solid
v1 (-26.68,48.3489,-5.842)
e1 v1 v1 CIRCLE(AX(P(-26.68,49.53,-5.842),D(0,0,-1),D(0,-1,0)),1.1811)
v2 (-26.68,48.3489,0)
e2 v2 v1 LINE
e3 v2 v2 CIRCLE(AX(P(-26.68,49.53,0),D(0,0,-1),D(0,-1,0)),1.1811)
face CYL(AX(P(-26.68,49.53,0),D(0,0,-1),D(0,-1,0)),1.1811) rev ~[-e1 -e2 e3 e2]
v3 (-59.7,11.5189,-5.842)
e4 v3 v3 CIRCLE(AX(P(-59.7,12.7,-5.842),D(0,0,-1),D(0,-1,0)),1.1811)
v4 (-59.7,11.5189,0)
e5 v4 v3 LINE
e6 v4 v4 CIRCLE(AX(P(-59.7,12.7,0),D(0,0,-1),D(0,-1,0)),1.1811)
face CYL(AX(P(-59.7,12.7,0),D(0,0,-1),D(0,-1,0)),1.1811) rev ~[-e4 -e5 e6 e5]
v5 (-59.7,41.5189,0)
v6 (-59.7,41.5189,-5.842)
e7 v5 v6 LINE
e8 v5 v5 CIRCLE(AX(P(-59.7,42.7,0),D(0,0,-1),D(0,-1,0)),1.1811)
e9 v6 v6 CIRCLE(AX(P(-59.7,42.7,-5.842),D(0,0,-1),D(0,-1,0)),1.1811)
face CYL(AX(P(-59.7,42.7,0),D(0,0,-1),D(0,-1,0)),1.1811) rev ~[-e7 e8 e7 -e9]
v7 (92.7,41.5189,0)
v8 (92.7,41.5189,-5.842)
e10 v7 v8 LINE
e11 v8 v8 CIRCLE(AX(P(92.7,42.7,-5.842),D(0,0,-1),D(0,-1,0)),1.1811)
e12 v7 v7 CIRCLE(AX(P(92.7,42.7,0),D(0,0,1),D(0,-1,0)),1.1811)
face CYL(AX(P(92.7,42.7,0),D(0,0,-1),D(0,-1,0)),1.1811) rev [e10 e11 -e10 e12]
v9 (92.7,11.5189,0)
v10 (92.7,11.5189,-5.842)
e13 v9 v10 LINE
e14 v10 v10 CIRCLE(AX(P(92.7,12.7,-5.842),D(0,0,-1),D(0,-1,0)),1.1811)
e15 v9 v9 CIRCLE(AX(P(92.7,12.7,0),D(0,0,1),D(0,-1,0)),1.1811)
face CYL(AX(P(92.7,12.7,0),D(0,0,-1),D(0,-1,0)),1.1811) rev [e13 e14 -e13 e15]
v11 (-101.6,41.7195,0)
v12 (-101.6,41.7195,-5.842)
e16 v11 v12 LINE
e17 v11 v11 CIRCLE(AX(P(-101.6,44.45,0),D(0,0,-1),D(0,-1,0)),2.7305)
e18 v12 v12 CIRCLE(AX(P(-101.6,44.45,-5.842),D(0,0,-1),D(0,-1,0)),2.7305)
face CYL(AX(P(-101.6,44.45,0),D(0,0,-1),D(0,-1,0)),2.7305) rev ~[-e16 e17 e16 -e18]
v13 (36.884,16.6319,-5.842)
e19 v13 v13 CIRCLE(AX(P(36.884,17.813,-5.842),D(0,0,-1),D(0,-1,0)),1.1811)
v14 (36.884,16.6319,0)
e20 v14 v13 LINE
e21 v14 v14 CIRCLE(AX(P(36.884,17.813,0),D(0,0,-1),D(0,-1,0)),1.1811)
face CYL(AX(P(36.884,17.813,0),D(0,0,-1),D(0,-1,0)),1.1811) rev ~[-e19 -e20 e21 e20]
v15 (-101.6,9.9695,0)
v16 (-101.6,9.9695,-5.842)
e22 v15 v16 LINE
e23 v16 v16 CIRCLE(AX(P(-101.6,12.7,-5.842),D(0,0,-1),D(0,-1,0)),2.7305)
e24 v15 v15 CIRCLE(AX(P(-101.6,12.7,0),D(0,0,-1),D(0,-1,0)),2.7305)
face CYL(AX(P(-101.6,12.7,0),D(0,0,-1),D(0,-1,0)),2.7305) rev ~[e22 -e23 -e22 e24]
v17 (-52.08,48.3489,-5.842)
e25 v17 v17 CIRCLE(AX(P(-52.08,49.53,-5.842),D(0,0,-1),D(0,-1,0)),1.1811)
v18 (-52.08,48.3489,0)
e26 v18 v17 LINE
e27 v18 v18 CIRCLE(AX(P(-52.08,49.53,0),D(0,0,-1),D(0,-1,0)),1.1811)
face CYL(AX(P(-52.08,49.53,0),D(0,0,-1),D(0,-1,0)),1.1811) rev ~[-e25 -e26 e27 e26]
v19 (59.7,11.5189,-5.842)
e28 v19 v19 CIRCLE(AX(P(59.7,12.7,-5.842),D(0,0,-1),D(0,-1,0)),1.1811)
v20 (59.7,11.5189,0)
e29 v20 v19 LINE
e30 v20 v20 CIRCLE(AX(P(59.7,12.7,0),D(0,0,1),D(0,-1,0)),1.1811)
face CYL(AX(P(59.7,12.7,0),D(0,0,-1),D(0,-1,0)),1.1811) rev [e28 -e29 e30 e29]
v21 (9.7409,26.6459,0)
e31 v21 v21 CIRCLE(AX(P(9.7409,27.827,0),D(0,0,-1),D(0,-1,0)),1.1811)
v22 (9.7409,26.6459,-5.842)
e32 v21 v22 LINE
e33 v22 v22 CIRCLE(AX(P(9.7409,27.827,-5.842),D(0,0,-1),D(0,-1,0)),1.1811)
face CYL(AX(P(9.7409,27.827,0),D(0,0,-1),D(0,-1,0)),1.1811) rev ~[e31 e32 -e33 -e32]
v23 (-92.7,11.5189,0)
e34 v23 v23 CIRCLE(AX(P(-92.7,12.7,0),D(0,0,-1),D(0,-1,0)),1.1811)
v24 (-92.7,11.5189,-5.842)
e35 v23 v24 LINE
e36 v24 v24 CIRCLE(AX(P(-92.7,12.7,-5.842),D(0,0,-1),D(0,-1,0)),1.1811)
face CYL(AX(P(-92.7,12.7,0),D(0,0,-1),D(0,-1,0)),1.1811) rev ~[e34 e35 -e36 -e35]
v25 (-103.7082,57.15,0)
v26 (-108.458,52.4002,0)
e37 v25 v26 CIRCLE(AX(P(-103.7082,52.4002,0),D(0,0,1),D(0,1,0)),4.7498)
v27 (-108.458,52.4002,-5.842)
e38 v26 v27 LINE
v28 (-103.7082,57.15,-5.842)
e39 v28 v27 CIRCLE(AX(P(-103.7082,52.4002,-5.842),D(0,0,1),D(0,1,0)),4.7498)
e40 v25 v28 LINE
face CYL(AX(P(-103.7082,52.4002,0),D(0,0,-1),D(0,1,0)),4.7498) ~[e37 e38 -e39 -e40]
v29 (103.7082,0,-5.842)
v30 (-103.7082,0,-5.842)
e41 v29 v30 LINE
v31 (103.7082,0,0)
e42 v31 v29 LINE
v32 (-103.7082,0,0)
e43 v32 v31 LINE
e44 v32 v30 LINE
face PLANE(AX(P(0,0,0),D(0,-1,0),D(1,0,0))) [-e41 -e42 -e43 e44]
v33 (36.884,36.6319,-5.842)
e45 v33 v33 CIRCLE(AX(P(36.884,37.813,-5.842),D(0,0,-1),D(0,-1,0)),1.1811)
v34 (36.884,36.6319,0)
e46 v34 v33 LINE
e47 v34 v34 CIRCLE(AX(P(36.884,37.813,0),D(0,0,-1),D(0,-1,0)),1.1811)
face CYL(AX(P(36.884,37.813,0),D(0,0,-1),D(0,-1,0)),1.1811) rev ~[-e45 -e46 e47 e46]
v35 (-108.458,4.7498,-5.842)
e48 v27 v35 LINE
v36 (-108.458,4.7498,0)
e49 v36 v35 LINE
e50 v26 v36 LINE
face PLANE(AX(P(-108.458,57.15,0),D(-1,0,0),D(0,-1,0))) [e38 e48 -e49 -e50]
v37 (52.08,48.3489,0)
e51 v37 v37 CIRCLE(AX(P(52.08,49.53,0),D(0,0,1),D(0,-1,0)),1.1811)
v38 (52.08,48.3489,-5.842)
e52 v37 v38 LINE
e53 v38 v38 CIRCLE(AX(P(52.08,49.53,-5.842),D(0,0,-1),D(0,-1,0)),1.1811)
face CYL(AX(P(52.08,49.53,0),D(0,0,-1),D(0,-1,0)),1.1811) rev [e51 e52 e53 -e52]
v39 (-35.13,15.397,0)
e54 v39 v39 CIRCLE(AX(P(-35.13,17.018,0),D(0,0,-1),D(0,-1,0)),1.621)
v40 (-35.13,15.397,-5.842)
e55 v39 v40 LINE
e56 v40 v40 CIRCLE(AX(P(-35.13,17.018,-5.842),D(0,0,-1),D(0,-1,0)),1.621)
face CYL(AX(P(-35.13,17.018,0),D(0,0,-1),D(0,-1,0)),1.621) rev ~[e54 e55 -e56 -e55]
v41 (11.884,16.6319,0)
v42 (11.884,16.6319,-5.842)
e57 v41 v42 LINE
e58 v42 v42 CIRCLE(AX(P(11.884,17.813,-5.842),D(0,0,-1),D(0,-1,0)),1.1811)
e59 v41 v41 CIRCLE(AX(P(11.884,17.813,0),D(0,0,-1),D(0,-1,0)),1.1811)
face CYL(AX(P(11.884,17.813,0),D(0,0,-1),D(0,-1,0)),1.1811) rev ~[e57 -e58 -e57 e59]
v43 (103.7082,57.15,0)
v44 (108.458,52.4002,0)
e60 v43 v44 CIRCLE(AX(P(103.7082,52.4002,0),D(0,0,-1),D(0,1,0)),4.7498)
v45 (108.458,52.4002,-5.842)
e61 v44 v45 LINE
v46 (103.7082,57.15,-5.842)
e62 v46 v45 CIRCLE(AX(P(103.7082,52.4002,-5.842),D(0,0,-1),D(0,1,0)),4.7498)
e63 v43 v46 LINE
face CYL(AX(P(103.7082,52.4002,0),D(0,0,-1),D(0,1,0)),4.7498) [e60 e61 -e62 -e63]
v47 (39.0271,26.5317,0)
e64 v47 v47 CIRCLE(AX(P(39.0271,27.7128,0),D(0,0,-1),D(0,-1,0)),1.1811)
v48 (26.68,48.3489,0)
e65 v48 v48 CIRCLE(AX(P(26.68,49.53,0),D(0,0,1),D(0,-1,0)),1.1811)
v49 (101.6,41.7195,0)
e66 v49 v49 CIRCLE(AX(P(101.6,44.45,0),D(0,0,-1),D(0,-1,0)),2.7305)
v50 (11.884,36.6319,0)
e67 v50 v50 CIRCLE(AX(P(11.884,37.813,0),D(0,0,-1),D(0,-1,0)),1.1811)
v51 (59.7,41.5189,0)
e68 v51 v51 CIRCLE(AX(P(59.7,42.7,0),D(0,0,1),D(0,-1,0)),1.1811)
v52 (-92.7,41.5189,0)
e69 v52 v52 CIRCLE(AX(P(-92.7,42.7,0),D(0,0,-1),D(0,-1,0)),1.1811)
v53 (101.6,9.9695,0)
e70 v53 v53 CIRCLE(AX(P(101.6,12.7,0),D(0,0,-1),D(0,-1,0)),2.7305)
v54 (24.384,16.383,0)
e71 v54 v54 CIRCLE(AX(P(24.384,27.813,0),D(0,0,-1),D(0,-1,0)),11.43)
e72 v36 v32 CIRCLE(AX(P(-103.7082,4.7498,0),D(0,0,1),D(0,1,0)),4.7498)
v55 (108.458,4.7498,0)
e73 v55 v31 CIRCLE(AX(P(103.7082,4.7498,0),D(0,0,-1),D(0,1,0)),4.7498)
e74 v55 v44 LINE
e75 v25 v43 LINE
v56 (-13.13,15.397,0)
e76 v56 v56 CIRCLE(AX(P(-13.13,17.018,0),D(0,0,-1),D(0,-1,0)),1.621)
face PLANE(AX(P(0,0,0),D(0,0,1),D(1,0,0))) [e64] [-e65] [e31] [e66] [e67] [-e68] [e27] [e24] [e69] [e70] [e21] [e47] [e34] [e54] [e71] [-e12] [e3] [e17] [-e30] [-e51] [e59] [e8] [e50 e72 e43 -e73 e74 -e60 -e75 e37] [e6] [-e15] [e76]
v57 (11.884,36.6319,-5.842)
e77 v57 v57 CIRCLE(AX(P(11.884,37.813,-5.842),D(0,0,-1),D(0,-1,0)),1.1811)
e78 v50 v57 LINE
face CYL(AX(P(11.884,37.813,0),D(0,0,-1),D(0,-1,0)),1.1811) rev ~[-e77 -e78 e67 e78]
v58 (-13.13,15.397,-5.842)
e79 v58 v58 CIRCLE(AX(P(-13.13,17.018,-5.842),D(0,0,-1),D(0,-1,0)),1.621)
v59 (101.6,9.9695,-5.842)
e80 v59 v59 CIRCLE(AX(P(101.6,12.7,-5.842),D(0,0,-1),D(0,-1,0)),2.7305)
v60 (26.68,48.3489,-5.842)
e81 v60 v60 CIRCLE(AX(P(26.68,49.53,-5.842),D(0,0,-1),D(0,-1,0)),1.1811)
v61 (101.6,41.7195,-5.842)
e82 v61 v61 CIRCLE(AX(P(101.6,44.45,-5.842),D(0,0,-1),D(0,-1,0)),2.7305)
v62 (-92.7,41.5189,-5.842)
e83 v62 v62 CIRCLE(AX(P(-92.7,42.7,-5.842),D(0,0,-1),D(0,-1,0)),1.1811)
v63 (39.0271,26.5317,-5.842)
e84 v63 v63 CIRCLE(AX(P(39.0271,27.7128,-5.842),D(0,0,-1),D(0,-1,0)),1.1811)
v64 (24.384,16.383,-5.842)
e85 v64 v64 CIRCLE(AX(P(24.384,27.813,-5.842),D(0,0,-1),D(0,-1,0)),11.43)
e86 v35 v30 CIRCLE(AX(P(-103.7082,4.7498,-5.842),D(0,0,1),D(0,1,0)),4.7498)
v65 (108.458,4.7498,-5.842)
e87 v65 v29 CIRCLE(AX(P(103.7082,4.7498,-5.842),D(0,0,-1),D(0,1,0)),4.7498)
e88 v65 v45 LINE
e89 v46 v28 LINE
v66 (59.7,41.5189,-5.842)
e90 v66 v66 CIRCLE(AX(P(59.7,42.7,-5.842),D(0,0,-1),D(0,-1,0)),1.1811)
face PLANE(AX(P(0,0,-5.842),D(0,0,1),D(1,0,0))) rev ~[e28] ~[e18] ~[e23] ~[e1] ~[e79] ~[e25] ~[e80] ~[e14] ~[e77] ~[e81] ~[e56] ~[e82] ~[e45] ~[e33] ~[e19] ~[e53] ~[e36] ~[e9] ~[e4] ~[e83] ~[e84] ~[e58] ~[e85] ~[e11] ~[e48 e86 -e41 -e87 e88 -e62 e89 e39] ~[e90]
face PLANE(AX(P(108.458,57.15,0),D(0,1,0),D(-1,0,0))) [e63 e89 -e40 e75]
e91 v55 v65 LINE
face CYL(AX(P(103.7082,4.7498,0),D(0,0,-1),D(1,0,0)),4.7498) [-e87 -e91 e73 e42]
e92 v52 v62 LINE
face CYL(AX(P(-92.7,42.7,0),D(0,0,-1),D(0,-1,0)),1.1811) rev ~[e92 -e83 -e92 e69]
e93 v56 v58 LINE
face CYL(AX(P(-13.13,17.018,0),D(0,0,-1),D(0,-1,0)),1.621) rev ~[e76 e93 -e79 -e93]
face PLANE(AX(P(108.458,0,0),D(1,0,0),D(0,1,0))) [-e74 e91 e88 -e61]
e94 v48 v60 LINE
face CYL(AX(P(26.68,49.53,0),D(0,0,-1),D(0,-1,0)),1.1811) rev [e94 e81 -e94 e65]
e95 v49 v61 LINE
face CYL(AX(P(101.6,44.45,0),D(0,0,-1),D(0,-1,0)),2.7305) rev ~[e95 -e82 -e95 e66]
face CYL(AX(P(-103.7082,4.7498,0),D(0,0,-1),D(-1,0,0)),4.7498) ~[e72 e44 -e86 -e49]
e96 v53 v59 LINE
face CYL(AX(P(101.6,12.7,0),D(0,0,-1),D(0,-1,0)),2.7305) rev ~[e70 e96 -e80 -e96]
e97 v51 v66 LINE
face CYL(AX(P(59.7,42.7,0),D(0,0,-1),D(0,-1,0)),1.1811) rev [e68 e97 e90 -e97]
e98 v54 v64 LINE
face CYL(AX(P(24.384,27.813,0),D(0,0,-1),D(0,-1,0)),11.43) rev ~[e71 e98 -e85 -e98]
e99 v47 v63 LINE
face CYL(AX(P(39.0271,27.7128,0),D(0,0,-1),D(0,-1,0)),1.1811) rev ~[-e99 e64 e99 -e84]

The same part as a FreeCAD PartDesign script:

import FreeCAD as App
import Part
import Sketcher
from FreeCAD import Vector
Q = App.Units.Quantity


def edges_at(feature, points):
    """Names of the edges that pass closest to the given points."""
    edges = feature.Shape.Edges
    near = lambda p: min(range(len(edges)), key=lambda i: edges[i].distToShape(Part.Vertex(*p))[0])
    return sorted({f"Edge{near(p) + 1}" for p in points})

doc = App.newDocument("Part")
body = doc.addObject("PartDesign::Body", "Body")

sketch1 = body.newObject("Sketcher::SketchObject", "Sketch")
sketch1.AttachmentSupport = (doc.getObject("XY_Plane"), [""])
sketch1.MapMode = "FlatFace"
sketch1.addGeometry([
    Part.LineSegment(Vector(108.458, 57.15, 0), Vector(-108.458, 57.15, 0)),
    Part.LineSegment(Vector(-108.458, 57.15, 0), Vector(-108.458, 0, 0)),
    Part.LineSegment(Vector(-108.458, 0, 0), Vector(108.458, 0, 0)),
    Part.LineSegment(Vector(108.458, 0, 0), Vector(108.458, 57.15, 0)),
], False)
sketch1.addConstraint([
    Sketcher.Constraint("Coincident", 0, 2, 1, 1),
    Sketcher.Constraint("Coincident", 1, 2, 2, 1),
    Sketcher.Constraint("Coincident", 2, 2, 3, 1),
    Sketcher.Constraint("Coincident", 3, 2, 0, 1),
    Sketcher.Constraint("Horizontal", 0),
    Sketcher.Constraint("Vertical", 1),
    Sketcher.Constraint("Horizontal", 2),
    Sketcher.Constraint("Vertical", 3),
    Sketcher.Constraint("Symmetric", 1, 2, 2, 2, -1, 1),
    Sketcher.Constraint("DistanceY", 1, 2, 1, 1, Q("2.25 in")),
    Sketcher.Constraint("DistanceX", 0, 2, -1, 1, Q("4.27 in")),
])
pad1 = body.newObject("PartDesign::Pad", "Pad")
pad1.Profile = sketch1
pad1.Length = Q("0.23 in")
pad1.Reversed = True

sketch2 = body.newObject("Sketcher::SketchObject", "Sketch001")
sketch2.AttachmentSupport = (doc.getObject("XY_Plane"), [""])
sketch2.MapMode = "FlatFace"
sketch2.addGeometry([
    Part.Circle(Vector(-101.6, 12.7, 0), Vector(0, 0, 1), 2.7305),
    Part.Circle(Vector(101.6, 12.7, 0), Vector(0, 0, 1), 2.7305),
    Part.Circle(Vector(-101.6, 44.45, 0), Vector(0, 0, 1), 2.7305),
    Part.Circle(Vector(101.6, 44.45, 0), Vector(0, 0, 1), 2.7305),
], False)
sketch2.addConstraint([
    Sketcher.Constraint("Equal", 0, 1),
    Sketcher.Constraint("Equal", 1, 2),
    Sketcher.Constraint("Equal", 2, 3),
    Sketcher.Constraint("Symmetric", 0, 3, 1, 3, -2),
    Sketcher.Constraint("Symmetric", 2, 3, 3, 3, -2),
    Sketcher.Constraint("Vertical", 0, 3, 2, 3),
    Sketcher.Constraint("Diameter", 0, Q("0.215 in")),
    Sketcher.Constraint("DistanceX", 0, 3, -1, 1, Q("4 in")),
    Sketcher.Constraint("DistanceY", -1, 1, 0, 3, Q("0.5 in")),
    Sketcher.Constraint("DistanceY", -1, 1, 2, 3, Q("1.75 in")),
])
doc.recompute()
hole = body.newObject("PartDesign::Hole", "Hole")
hole.Profile = sketch2
hole.ThreadType = "None"
hole.Diameter = Q("0.215 in")
hole.DepthType = "ThroughAll"

sketch3 = body.newObject("Sketcher::SketchObject", "Sketch002")
sketch3.AttachmentSupport = (doc.getObject("XY_Plane"), [""])
sketch3.MapMode = "FlatFace"
sketch3.addGeometry([
    Part.Circle(Vector(-92.7, 42.7, 0), Vector(0, 0, 1), 1.1811),
    Part.Circle(Vector(-59.7, 42.7, 0), Vector(0, 0, 1), 1.1811),
    Part.Circle(Vector(-59.7, 12.7, 0), Vector(0, 0, 1), 1.1811),
    Part.Circle(Vector(-92.7, 12.7, 0), Vector(0, 0, 1), 1.1811),
    Part.Circle(Vector(-26.68, 49.53, 0), Vector(0, 0, 1), 1.1811),
    Part.Circle(Vector(-52.08, 49.53, 0), Vector(0, 0, 1), 1.1811),
], False)
sketch3.addConstraint([
    Sketcher.Constraint("Equal", 0, 1),
    Sketcher.Constraint("Equal", 1, 2),
    Sketcher.Constraint("Equal", 2, 3),
    Sketcher.Constraint("Equal", 3, 4),
    Sketcher.Constraint("Equal", 4, 5),
    Sketcher.Constraint("Horizontal", 0, 3, 1, 3),
    Sketcher.Constraint("Horizontal", 2, 3, 3, 3),
    Sketcher.Constraint("Horizontal", 4, 3, 5, 3),
    Sketcher.Constraint("Vertical", 1, 3, 2, 3),
    Sketcher.Constraint("Vertical", 0, 3, 3, 3),
    Sketcher.Constraint("Diameter", 0, Q("0.093 in")),
    Sketcher.Constraint("DistanceX", 5, 3, 4, 3, Q("1 in")),
    Sketcher.Constraint("DistanceY", -1, 1, 2, 3, Q("0.5 in")),
    Sketcher.Constraint("DistanceX", 1, 3, 4, 3, Q("1.3 in")),
    Sketcher.Constraint("DistanceY", -1, 1, 4, 3, Q("1.95 in")),
    Sketcher.Constraint("DistanceX", 0, 3, -1, 1, Q("3.6496 in")),
    Sketcher.Constraint("DistanceY", -1, 1, 0, 3, Q("1.6811 in")),
    Sketcher.Constraint("DistanceX", 1, 3, -1, 1, Q("2.3504 in")),
])
doc.recompute()
hole2 = body.newObject("PartDesign::Hole", "Hole001")
hole2.Profile = sketch3
hole2.ThreadType = "None"
hole2.Diameter = Q("0.093 in")
hole2.DepthType = "ThroughAll"
doc.recompute()

fillet = body.newObject("PartDesign::Fillet", "Fillet")
fillet.Base = (hole2, edges_at(hole2, [
    (-108.458, 57.15, -2.921),
    (108.458, 57.15, -2.921),
    (108.458, 0, -2.921),
    (-108.458, 0, -2.921),
]))
fillet.Radius = Q("0.187 in")

sketch4 = body.newObject("Sketcher::SketchObject", "Sketch003")
sketch4.AttachmentSupport = (doc.getObject("XY_Plane"), [""])
sketch4.MapMode = "FlatFace"
sketch4.addGeometry([
    Part.Circle(Vector(36.884, 37.813, 0), Vector(0, 0, 1), 1.1811),
    Part.Circle(Vector(36.884, 17.813, 0), Vector(0, 0, 1), 1.1811),
    Part.Circle(Vector(11.884, 17.813, 0), Vector(0, 0, 1), 1.1811),
    Part.Circle(Vector(11.884, 37.813, 0), Vector(0, 0, 1), 1.1811),
    Part.Circle(Vector(39.0271, 27.7128, 0), Vector(0, 0, 1), 1.1811),
    Part.Circle(Vector(9.7409, 27.827, 0), Vector(0, 0, 1), 1.1811),
], False)
sketch4.addConstraint([
    Sketcher.Constraint("Equal", 0, 1),
    Sketcher.Constraint("Equal", 1, 2),
    Sketcher.Constraint("Equal", 2, 3),
    Sketcher.Constraint("Equal", 3, 4),
    Sketcher.Constraint("Equal", 4, 5),
    Sketcher.Constraint("Horizontal", 1, 3, 2, 3),
    Sketcher.Constraint("Horizontal", 0, 3, 3, 3),
    Sketcher.Constraint("Vertical", 0, 3, 1, 3),
    Sketcher.Constraint("Vertical", 2, 3, 3, 3),
    Sketcher.Constraint("Diameter", 0, Q("0.093 in")),
    Sketcher.Constraint("DistanceX", 5, 3, 4, 3, Q("1.153 in")),
    Sketcher.Constraint("DistanceY", -1, 1, 0, 3, Q("1.4887 in")),
    Sketcher.Constraint("DistanceY", -1, 1, 1, 3, Q("0.7013 in")),
    Sketcher.Constraint("DistanceX", -1, 1, 4, 3, Q("1.5365 in")),
    Sketcher.Constraint("DistanceY", 4, 3, 5, 3, Q("0.0045 in")),
    Sketcher.Constraint("DistanceX", -1, 1, 0, 3, 36.884),
    Sketcher.Constraint("DistanceX", -1, 1, 2, 3, 11.884),
    Sketcher.Constraint("DistanceY", -1, 1, 4, 3, 27.7128),
])
doc.recompute()
hole3 = body.newObject("PartDesign::Hole", "Hole002")
hole3.Profile = sketch4
hole3.ThreadType = "None"
hole3.Diameter = Q("0.093 in")
hole3.DepthType = "ThroughAll"

sketch5 = body.newObject("Sketcher::SketchObject", "Sketch004")
sketch5.AttachmentSupport = (doc.getObject("XY_Plane"), [""])
sketch5.MapMode = "FlatFace"
sketch5.addGeometry(Part.Circle(Vector(24.384, 27.813, 0), Vector(0, 0, 1), 11.43), False)
sketch5.addConstraint([
    Sketcher.Constraint("Diameter", 0, Q("0.9 in")),
    Sketcher.Constraint("DistanceX", -1, 1, 0, 3, Q("0.96 in")),
    Sketcher.Constraint("DistanceY", -1, 1, 0, 3, Q("1.095 in")),
])
doc.recompute()
hole4 = body.newObject("PartDesign::Hole", "Hole003")
hole4.Profile = sketch5
hole4.ThreadType = "None"
hole4.Diameter = Q("0.9 in")
hole4.DepthType = "ThroughAll"

sketch6 = body.newObject("Sketcher::SketchObject", "Sketch005")
sketch6.AttachmentSupport = (doc.getObject("XY_Plane"), [""])
sketch6.MapMode = "FlatFace"
sketch6.addGeometry([
    Part.Circle(Vector(-35.13, 17.018, 0), Vector(0, 0, 1), 1.621),
    Part.Circle(Vector(-13.13, 17.018, 0), Vector(0, 0, 1), 1.621),
], False)
sketch6.addConstraint([
    Sketcher.Constraint("Equal", 0, 1),
    Sketcher.Constraint("Horizontal", 0, 3, 1, 3),
    Sketcher.Constraint("Diameter", 0, 3.242),
    Sketcher.Constraint("DistanceY", -1, 1, 0, 3, Q("0.67 in")),
    Sketcher.Constraint("DistanceX", 0, 3, -1, 1, 35.13),
    Sketcher.Constraint("DistanceX", 1, 3, -1, 1, 13.13),
])
doc.recompute()
hole5 = body.newObject("PartDesign::Hole", "Hole004")
hole5.Profile = sketch6
hole5.ThreadType = "None"
hole5.Diameter = 3.242
hole5.DepthType = "ThroughAll"
doc.recompute()

mirrored = body.newObject("PartDesign::Mirrored", "Mirrored")
mirrored.Originals = [hole2]
mirrored.MirrorPlane = (doc.getObject("YZ_Plane"), [""])
body.Tip = mirrored

doc.recompute()
